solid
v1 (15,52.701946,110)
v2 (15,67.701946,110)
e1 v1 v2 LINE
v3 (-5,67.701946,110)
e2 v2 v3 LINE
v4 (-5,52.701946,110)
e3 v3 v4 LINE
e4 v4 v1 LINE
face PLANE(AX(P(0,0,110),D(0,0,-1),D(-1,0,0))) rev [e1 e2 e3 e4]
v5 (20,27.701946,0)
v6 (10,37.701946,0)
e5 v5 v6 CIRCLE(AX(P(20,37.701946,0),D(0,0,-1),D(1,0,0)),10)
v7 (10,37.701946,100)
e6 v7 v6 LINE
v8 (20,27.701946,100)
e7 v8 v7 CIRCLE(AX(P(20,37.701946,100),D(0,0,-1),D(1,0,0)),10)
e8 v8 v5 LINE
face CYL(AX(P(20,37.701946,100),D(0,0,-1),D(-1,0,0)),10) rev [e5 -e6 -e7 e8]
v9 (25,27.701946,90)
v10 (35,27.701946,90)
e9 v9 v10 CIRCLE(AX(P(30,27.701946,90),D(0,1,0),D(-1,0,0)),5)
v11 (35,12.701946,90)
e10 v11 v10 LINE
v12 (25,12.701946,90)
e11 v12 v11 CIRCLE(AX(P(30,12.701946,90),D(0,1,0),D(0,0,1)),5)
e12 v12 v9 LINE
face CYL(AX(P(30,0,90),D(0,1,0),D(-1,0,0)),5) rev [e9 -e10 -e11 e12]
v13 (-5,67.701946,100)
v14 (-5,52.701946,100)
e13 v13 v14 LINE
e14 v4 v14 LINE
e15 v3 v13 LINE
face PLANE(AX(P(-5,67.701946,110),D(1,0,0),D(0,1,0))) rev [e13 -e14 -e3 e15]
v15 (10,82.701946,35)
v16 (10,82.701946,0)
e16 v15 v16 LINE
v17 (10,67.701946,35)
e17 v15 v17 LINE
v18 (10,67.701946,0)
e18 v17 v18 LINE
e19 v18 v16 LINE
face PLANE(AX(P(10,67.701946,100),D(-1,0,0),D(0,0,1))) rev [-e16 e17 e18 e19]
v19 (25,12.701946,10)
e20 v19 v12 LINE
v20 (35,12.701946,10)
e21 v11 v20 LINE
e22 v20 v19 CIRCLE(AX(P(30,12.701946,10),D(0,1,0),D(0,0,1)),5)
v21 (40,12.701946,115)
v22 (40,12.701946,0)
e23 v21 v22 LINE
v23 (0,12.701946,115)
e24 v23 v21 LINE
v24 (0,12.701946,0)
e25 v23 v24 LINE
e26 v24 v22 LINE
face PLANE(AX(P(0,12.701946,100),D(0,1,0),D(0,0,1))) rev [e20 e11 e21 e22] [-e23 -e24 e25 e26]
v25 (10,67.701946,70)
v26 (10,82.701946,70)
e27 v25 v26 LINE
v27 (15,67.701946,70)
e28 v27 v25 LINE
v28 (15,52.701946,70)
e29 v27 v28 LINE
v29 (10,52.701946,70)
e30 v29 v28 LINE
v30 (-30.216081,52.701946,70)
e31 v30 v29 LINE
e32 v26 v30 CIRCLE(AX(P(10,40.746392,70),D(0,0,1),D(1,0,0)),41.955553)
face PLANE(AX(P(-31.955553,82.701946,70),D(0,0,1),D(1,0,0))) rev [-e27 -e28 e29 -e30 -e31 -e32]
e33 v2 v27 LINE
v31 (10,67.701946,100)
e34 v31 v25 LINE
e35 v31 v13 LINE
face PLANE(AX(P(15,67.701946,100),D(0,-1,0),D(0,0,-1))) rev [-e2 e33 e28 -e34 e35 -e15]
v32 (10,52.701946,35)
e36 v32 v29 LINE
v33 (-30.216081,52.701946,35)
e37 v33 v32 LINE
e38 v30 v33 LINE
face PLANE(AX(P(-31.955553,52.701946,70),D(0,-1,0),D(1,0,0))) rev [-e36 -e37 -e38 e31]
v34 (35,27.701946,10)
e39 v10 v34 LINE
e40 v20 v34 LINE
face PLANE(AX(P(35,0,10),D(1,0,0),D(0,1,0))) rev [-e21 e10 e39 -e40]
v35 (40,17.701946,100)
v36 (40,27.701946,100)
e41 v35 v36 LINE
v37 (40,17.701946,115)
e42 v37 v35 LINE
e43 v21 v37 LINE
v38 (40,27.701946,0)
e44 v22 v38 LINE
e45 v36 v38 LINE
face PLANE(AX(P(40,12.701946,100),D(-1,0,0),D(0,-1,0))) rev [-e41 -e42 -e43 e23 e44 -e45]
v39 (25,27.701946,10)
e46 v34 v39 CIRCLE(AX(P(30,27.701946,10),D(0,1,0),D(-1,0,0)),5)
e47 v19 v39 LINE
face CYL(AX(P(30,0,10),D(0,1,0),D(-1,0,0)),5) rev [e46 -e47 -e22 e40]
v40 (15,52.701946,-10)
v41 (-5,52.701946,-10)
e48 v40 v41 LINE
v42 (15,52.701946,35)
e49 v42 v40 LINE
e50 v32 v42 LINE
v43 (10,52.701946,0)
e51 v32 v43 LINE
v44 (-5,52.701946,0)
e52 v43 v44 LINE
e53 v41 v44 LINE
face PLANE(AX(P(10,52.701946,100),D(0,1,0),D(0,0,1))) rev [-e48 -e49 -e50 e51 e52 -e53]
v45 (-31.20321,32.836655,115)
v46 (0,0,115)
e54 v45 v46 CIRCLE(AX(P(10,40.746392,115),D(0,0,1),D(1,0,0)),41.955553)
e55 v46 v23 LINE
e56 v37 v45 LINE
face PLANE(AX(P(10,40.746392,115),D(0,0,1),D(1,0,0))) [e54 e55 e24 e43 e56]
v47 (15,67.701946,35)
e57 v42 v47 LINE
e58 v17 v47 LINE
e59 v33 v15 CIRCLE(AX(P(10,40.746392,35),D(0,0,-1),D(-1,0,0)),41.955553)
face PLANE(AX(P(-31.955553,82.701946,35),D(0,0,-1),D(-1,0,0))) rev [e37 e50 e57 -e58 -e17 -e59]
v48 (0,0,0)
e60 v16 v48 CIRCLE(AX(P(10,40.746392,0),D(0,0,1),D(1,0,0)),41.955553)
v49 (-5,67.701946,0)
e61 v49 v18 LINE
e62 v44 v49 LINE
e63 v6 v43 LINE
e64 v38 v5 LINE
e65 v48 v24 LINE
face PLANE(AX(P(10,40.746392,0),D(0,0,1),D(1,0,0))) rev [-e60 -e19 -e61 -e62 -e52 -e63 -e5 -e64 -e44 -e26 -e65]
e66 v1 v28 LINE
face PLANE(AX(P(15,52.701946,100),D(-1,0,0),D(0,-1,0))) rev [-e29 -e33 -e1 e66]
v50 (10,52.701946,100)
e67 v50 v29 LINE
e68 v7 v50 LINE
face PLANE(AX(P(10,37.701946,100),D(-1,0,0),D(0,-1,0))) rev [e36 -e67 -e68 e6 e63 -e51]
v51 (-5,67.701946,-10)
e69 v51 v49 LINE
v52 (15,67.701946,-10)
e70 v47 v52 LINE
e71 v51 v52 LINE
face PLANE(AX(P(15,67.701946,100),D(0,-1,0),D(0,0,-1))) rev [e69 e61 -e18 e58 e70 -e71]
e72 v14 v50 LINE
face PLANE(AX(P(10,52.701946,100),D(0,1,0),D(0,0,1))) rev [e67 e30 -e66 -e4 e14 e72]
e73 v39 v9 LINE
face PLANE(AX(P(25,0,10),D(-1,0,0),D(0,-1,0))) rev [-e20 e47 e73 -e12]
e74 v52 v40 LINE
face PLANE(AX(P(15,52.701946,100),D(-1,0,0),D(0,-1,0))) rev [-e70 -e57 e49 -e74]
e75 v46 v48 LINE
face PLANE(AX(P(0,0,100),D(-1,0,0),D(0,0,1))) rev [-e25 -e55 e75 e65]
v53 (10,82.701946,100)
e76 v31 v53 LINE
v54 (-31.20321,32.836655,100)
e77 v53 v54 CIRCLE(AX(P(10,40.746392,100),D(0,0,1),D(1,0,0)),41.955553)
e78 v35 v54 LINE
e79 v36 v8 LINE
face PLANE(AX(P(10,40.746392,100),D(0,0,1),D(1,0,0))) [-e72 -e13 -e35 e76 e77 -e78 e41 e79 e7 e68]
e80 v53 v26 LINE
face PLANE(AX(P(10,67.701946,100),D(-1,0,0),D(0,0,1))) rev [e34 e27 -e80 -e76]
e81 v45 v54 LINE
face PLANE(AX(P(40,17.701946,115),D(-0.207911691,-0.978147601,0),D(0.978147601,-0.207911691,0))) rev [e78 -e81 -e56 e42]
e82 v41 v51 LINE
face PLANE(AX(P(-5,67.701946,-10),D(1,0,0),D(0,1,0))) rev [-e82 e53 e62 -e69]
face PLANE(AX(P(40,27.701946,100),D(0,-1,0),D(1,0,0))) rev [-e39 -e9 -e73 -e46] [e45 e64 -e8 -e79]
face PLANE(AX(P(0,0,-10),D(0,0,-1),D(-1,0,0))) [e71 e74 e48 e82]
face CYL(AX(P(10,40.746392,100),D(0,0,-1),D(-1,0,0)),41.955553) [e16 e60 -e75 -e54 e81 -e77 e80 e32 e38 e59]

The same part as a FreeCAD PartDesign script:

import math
import FreeCAD as App
import Part
import Sketcher
from FreeCAD import Vector
Q = App.Units.Quantity


def add_polygon(sketch, points):
    """Adds a closed chain of lines whose ends are joined by coincident constraints."""
    first, n = sketch.GeometryCount, len(points)
    for a, b in zip(points, points[1:] + points[:1]):
        sketch.addGeometry(Part.LineSegment(App.Vector(*a, 0), App.Vector(*b, 0)), False)
    for i in range(n):
        sketch.addConstraint(Sketcher.Constraint("Coincident", first + i, 2, first + (i + 1) % n, 1))

doc = App.newDocument("Part")
body = doc.addObject("PartDesign::Body", "Body")

# Sketch on XY plane
sketch1 = body.newObject("Sketcher::SketchObject", "Sketch")
sketch1.AttachmentSupport = (doc.getObject("XY_Plane"), [""])
sketch1.MapMode = "FlatFace"
sketch1.addGeometry(Part.LineSegment(Vector(0, 0, 0), Vector(0, 13, 0)), False)
sketch1.addGeometry(Part.LineSegment(Vector(0, 13, 0), Vector(40, 13, 0)), False)
sketch1.addGeometry(Part.LineSegment(Vector(40, 13, 0), Vector(40, 28, 0)), False)
sketch1.addGeometry(Part.LineSegment(Vector(40, 28, 0), Vector(20, 28, 0)), False)
sketch1.addGeometry(Part.ArcOfCircle(Part.Circle(Vector(20, 38, 0), Vector(0, 0, 1), 10), math.radians(180), math.radians(270)), False)
sketch1.addGeometry(Part.LineSegment(Vector(10, 38, 0), Vector(10, 53, 0)), False)
sketch1.addGeometry(Part.LineSegment(Vector(10, 53, 0), Vector(15, 53, 0)), False)
sketch1.addGeometry(Part.LineSegment(Vector(15, 53, 0), Vector(15, 68, 0)), False)
sketch1.addGeometry(Part.LineSegment(Vector(15, 68, 0), Vector(10, 68, 0)), False)
sketch1.addGeometry(Part.LineSegment(Vector(10, 68, 0), Vector(10, 83, 0)), False)
sketch1.addGeometry(Part.ArcOfCircle(Part.Circle(Vector(10, 41, 0), Vector(0, 0, 1), 42), math.radians(90), math.radians(256)), False)
sketch1.addConstraint(Sketcher.Constraint("Coincident", 0, 2, 1, 1))
sketch1.addConstraint(Sketcher.Constraint("Coincident", 1, 2, 2, 1))
sketch1.addConstraint(Sketcher.Constraint("Coincident", 2, 2, 3, 1))
sketch1.addConstraint(Sketcher.Constraint("Tangent", 3, 2, 4, 2))
sketch1.addConstraint(Sketcher.Constraint("Tangent", 4, 1, 5, 1))
sketch1.addConstraint(Sketcher.Constraint("Coincident", 5, 2, 6, 1))
sketch1.addConstraint(Sketcher.Constraint("Coincident", 6, 2, 7, 1))
sketch1.addConstraint(Sketcher.Constraint("Coincident", 7, 2, 8, 1))
sketch1.addConstraint(Sketcher.Constraint("Coincident", 8, 2, 9, 1))
sketch1.addConstraint(Sketcher.Constraint("Coincident", 9, 2, 10, 1))
sketch1.addConstraint(Sketcher.Constraint("Coincident", 10, 2, 0, 1))
sketch1.addConstraint(Sketcher.Constraint("Vertical", 0))
sketch1.addConstraint(Sketcher.Constraint("Horizontal", 1))
sketch1.addConstraint(Sketcher.Constraint("Vertical", 2))
sketch1.addConstraint(Sketcher.Constraint("Horizontal", 3))
sketch1.addConstraint(Sketcher.Constraint("Vertical", 5))
sketch1.addConstraint(Sketcher.Constraint("Horizontal", 6))
sketch1.addConstraint(Sketcher.Constraint("Vertical", 7))
sketch1.addConstraint(Sketcher.Constraint("Horizontal", 8))
sketch1.addConstraint(Sketcher.Constraint("Vertical", 9))
sketch1.addConstraint(Sketcher.Constraint("Coincident", 10, 2, -1, 1))
sketch1.addConstraint(Sketcher.Constraint("Vertical", 10, 3, 4, 1))
sketch1.addConstraint(Sketcher.Constraint("Vertical", 5, 2, 8, 2))
sketch1.addConstraint(Sketcher.Constraint("Equal", 2, 5))
sketch1.addConstraint(Sketcher.Constraint("Equal", 5, 7))
sketch1.addConstraint(Sketcher.Constraint("Equal", 7, 9))
sketch1.addConstraint(Sketcher.Constraint("Radius", 4, 10.0))
sketch1.addConstraint(Sketcher.Constraint("DistanceX", 1, 1, 1, 2, 40.0))
sketch1.addConstraint(Sketcher.Constraint("DistanceX", 3, 2, 3, 1, 20.0))
sketch1.addConstraint(Sketcher.Constraint("DistanceX", 6, 1, 6, 2, 5.0))
sketch1.addConstraint(Sketcher.Constraint("DistanceY", 2, 1, 2, 2, 15.0))
sketch1.addConstraint(Sketcher.Constraint("Radius", 10, 41.955553))
pad1 = body.newObject("PartDesign::Pad", "Pad")
pad1.Profile = sketch1
pad1.Length = 100

# Sketch on YZ plane
sketch2 = body.newObject("Sketcher::SketchObject", "Sketch001")
sketch2.AttachmentSupport = (doc.getObject("YZ_Plane"), [""])
sketch2.MapMode = "FlatFace"
sketch2.AttachmentOffset = App.Placement(Vector(0, 0, 15), App.Rotation())
add_polygon(sketch2, [(83, 70), (53, 70), (53, 35), (83, 35)])  # lines 0-3
sketch2.addConstraint(Sketcher.Constraint("Horizontal", 0))
sketch2.addConstraint(Sketcher.Constraint("Vertical", 1))
sketch2.addConstraint(Sketcher.Constraint("Horizontal", 2))
sketch2.addConstraint(Sketcher.Constraint("Vertical", 3))
sketch2.addConstraint(Sketcher.Constraint("DistanceX", 0, 2, 0, 1, 30.0))
sketch2.addConstraint(Sketcher.Constraint("DistanceY", 1, 2, 1, 1, 35.0))
sketch2.addConstraint(Sketcher.Constraint("DistanceY", -1, 1, 0, 2, 70.0))
sketch2.addConstraint(Sketcher.Constraint("DistanceX", -1, 1, 0, 2, 52.701946))
pocket1 = body.newObject("PartDesign::Pocket", "Pocket")
pocket1.Profile = sketch2
pocket1.Type = "ThroughAll"

# Sketch on XY plane
sketch3 = body.newObject("Sketcher::SketchObject", "Sketch002")
sketch3.AttachmentSupport = (doc.getObject("XY_Plane"), [""])
sketch3.MapMode = "FlatFace"
sketch3.AttachmentOffset = App.Placement(Vector(0, 0, 100), App.Rotation())
add_polygon(sketch3, [(-5, 68), (-5, 53), (15, 53), (15, 68)])  # lines 0-3
sketch3.addConstraint(Sketcher.Constraint("Vertical", 0))
sketch3.addConstraint(Sketcher.Constraint("Horizontal", 1))
sketch3.addConstraint(Sketcher.Constraint("Vertical", 2))
sketch3.addConstraint(Sketcher.Constraint("Horizontal", 3))
sketch3.addConstraint(Sketcher.Constraint("DistanceX", 1, 1, 1, 2, 20.0))
sketch3.addConstraint(Sketcher.Constraint("DistanceY", 0, 2, 0, 1, 15.0))
sketch3.addConstraint(Sketcher.Constraint("DistanceX", 0, 2, -1, 1, 5.0))
sketch3.addConstraint(Sketcher.Constraint("DistanceY", -1, 1, 0, 2, 52.701946))
pad2 = body.newObject("PartDesign::Pad", "Pad001")
pad2.Profile = sketch3
pad2.Length = 10

# Sketch on XY plane
sketch4 = body.newObject("Sketcher::SketchObject", "Sketch003")
sketch4.AttachmentSupport = (doc.getObject("XY_Plane"), [""])
sketch4.MapMode = "FlatFace"
add_polygon(sketch4, [(15, 68), (15, 53), (-5, 53), (-5, 68)])  # lines 0-3
sketch4.addConstraint(Sketcher.Constraint("Vertical", 0))
sketch4.addConstraint(Sketcher.Constraint("Horizontal", 1))
sketch4.addConstraint(Sketcher.Constraint("Vertical", 2))
sketch4.addConstraint(Sketcher.Constraint("Horizontal", 3))
sketch4.addConstraint(Sketcher.Constraint("DistanceX", 1, 2, 1, 1, 20.0))
sketch4.addConstraint(Sketcher.Constraint("DistanceY", 0, 2, 0, 1, 15.0))
sketch4.addConstraint(Sketcher.Constraint("DistanceX", -1, 1, 0, 2, 15.0))
sketch4.addConstraint(Sketcher.Constraint("DistanceY", -1, 1, 0, 2, 52.701946))
pad3 = body.newObject("PartDesign::Pad", "Pad002")
pad3.Profile = sketch4
pad3.Length = 10
pad3.Reversed = True

# Sketch on XY plane
sketch5 = body.newObject("Sketcher::SketchObject", "Sketch004")
sketch5.AttachmentSupport = (doc.getObject("XY_Plane"), [""])
sketch5.MapMode = "FlatFace"
sketch5.AttachmentOffset = App.Placement(Vector(0, 0, 100), App.Rotation())
sketch5.addGeometry(Part.LineSegment(Vector(40, 18, 0), Vector(-31, 33, 0)), False)
sketch5.addGeometry(Part.ArcOfCircle(Part.Circle(Vector(10, 41, 0), Vector(0, 0, 1), 42), math.radians(-169), math.radians(-104)), False)
sketch5.addGeometry(Part.LineSegment(Vector(0, 0, 0), Vector(0, 13, 0)), False)
sketch5.addGeometry(Part.LineSegment(Vector(0, 13, 0), Vector(40, 13, 0)), False)
sketch5.addGeometry(Part.LineSegment(Vector(40, 13, 0), Vector(40, 18, 0)), False)
sketch5.addConstraint(Sketcher.Constraint("Coincident", 0, 2, 1, 1))
sketch5.addConstraint(Sketcher.Constraint("Coincident", 1, 2, 2, 1))
sketch5.addConstraint(Sketcher.Constraint("Coincident", 2, 2, 3, 1))
sketch5.addConstraint(Sketcher.Constraint("Coincident", 3, 2, 4, 1))
sketch5.addConstraint(Sketcher.Constraint("Coincident", 4, 2, 0, 1))
sketch5.addConstraint(Sketcher.Constraint("Vertical", 2))
sketch5.addConstraint(Sketcher.Constraint("Horizontal", 3))
sketch5.addConstraint(Sketcher.Constraint("Vertical", 4))
sketch5.addConstraint(Sketcher.Constraint("Coincident", 1, 2, -1, 1))
sketch5.addConstraint(Sketcher.Constraint("DistanceX", 3, 1, 3, 2, 40.0))
sketch5.addConstraint(Sketcher.Constraint("DistanceY", 4, 1, 4, 2, 5.0))
sketch5.addConstraint(Sketcher.Constraint("Angle", 0, Q("168 deg")))
sketch5.addConstraint(Sketcher.Constraint("DistanceX", -1, 1, 1, 3, 10.0))
sketch5.addConstraint(Sketcher.Constraint("Radius", 1, 41.955553))
sketch5.addConstraint(Sketcher.Constraint("DistanceY", 2, 1, 2, 2, 12.701946))
pad4 = body.newObject("PartDesign::Pad", "Pad003")
pad4.Profile = sketch5
pad4.Length = 15

# Sketch on XZ plane
sketch6 = body.newObject("Sketcher::SketchObject", "Sketch005")
sketch6.AttachmentSupport = (doc.getObject("XZ_Plane"), [""])
sketch6.MapMode = "FlatFace"
sketch6.AttachmentOffset = App.Placement(Vector(0, 0, -27.701946), App.Rotation())
sketch6.addGeometry(Part.LineSegment(Vector(35, 90, 0), Vector(35, 10, 0)), False)
sketch6.addGeometry(Part.ArcOfCircle(Part.Circle(Vector(30, 10, 0), Vector(0, 0, 1), 5), math.radians(180), math.radians(360)), False)
sketch6.addGeometry(Part.LineSegment(Vector(25, 10, 0), Vector(25, 90, 0)), False)
sketch6.addGeometry(Part.ArcOfCircle(Part.Circle(Vector(30, 90, 0), Vector(0, 0, 1), 5), math.radians(0), math.radians(180)), False)
sketch6.addConstraint(Sketcher.Constraint("Tangent", 0, 2, 1, 2))
sketch6.addConstraint(Sketcher.Constraint("Tangent", 1, 1, 2, 1))
sketch6.addConstraint(Sketcher.Constraint("Tangent", 2, 2, 3, 2))
sketch6.addConstraint(Sketcher.Constraint("Tangent", 3, 1, 0, 1))
sketch6.addConstraint(Sketcher.Constraint("Vertical", 0))
sketch6.addConstraint(Sketcher.Constraint("Vertical", 2))
sketch6.addConstraint(Sketcher.Constraint("Radius", 1, 5.0))
sketch6.addConstraint(Sketcher.Constraint("DistanceY", 0, 2, 0, 1, 80.0))
sketch6.addConstraint(Sketcher.Constraint("DistanceX", -1, 1, 1, 3, 30.0))
sketch6.addConstraint(Sketcher.Constraint("DistanceY", -1, 1, 1, 3, 10.0))
pocket2 = body.newObject("PartDesign::Pocket", "Pocket001")
pocket2.Profile = sketch6
pocket2.Type = "ThroughAll"
pocket2.Reversed = True

doc.recompute()
